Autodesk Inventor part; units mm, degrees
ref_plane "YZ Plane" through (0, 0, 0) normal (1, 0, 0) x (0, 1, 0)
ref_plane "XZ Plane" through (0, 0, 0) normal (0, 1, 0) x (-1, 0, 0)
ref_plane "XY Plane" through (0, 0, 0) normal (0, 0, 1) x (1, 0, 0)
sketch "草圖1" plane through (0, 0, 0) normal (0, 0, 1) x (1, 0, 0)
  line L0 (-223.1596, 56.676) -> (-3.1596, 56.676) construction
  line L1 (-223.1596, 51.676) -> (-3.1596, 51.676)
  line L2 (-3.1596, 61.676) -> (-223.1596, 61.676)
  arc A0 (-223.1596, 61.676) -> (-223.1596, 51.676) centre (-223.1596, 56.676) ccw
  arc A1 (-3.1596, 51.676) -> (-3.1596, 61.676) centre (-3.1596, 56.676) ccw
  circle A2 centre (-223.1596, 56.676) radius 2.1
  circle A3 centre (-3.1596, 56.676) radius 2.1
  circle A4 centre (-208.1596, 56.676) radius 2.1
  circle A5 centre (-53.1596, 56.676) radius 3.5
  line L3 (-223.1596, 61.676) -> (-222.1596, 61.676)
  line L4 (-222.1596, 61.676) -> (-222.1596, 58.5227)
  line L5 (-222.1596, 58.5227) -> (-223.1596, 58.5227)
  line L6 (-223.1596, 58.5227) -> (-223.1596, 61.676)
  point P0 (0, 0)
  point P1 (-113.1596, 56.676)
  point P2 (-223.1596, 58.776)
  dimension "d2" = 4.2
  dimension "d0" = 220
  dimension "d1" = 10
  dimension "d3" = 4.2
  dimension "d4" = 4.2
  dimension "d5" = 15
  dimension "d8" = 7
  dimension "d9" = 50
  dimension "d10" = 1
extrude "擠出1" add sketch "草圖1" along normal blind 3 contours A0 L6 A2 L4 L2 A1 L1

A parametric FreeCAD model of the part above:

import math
import FreeCAD as App
import Part
import Sketcher
from FreeCAD import Vector

doc = App.newDocument("Part")
params = doc.addObject("Spreadsheet::Sheet", "Params")
for row, (alias, value) in enumerate([
    ("sketch1_diameter", "7 mm"),
    ("sketch1_radius", "5 mm"),
    ("sketch1_diameter2", "4.2 mm"),
    ("sketch1_width", "220 mm"),
    ("pad1_length", "3 mm"),
], start=1):
    params.set(f"A{row}", alias)
    params.set(f"B{row}", "=" + value)
    params.setAlias(f"B{row}", alias)

body = doc.addObject("PartDesign::Body", "Body")

sketch1 = body.newObject("Sketcher::SketchObject", "Sketch")
sketch1.AttachmentSupport = (doc.getObject("XY_Plane"), [""])
sketch1.MapMode = "FlatFace"
sketch1.addGeometry(Part.ArcOfCircle(Part.Circle(Vector(-223.2, 56.7, 0), Vector(0, 0, 1), 5), math.radians(90), math.radians(270)), False)
sketch1.addGeometry(Part.LineSegment(Vector(-223.2, 51.7, 0), Vector(-3.2, 51.7, 0)), False)
sketch1.addGeometry(Part.ArcOfCircle(Part.Circle(Vector(-3.2, 56.7, 0), Vector(0, 0, 1), 5), math.radians(-90), math.radians(90)), False)
sketch1.addGeometry(Part.LineSegment(Vector(-3.2, 61.7, 0), Vector(-222.2, 61.7, 0)), False)
sketch1.addGeometry(Part.LineSegment(Vector(-222.2, 61.7, 0), Vector(-222.2, 58.5, 0)), False)
sketch1.addGeometry(Part.ArcOfCircle(Part.Circle(Vector(-223.2, 56.7, 0), Vector(0, 0, 1), 2.1), math.radians(90), math.radians(422)), False)
sketch1.addGeometry(Part.LineSegment(Vector(-223.2, 58.8, 0), Vector(-223.2, 61.7, 0)), False)
sketch1.addGeometry(Part.Circle(Vector(-208.2, 56.7, 0), Vector(0, 0, 1), 2.1), False)
sketch1.addGeometry(Part.Circle(Vector(-53.2, 56.7, 0), Vector(0, 0, 1), 3.5), False)
sketch1.addGeometry(Part.Circle(Vector(-3.2, 56.7, 0), Vector(0, 0, 1), 2.1), False)
sketch1.addConstraint(Sketcher.Constraint("Tangent", 0, 2, 1, 1))
sketch1.addConstraint(Sketcher.Constraint("Tangent", 1, 2, 2, 1))
sketch1.addConstraint(Sketcher.Constraint("Tangent", 2, 2, 3, 1))
sketch1.addConstraint(Sketcher.Constraint("Coincident", 3, 2, 4, 1))
sketch1.addConstraint(Sketcher.Constraint("Coincident", 4, 2, 5, 2))
sketch1.addConstraint(Sketcher.Constraint("Coincident", 5, 1, 6, 1))
sketch1.addConstraint(Sketcher.Constraint("Coincident", 6, 2, 0, 1))
sketch1.addConstraint(Sketcher.Constraint("Horizontal", 1))
sketch1.addConstraint(Sketcher.Constraint("Horizontal", 3))
sketch1.addConstraint(Sketcher.Constraint("Vertical", 4))
sketch1.addConstraint(Sketcher.Constraint("Vertical", 6))
sketch1.addConstraint(Sketcher.Constraint("Coincident", 5, 3, 0, 3))
sketch1.addConstraint(Sketcher.Constraint("Coincident", 9, 3, 2, 3))
sketch1.addConstraint(Sketcher.Constraint("Equal", 0, 2))
sketch1.addConstraint(Sketcher.Constraint("Equal", 5, 7))
sketch1.addConstraint(Sketcher.Constraint("Equal", 7, 9))
sketch1.addConstraint(Sketcher.Constraint("Horizontal", 5, 3, 7, 3))
sketch1.addConstraint(Sketcher.Constraint("Horizontal", 7, 3, 8, 3))
sketch1.addConstraint(Sketcher.Constraint("Vertical", 0, 2, 5, 1))
sketch1.addConstraint(Sketcher.Constraint("Diameter", 8, 7.0))
sketch1.addConstraint(Sketcher.Constraint("Radius", 0, 5.0))
sketch1.addConstraint(Sketcher.Constraint("Diameter", 7, 4.2))
sketch1.addConstraint(Sketcher.Constraint("DistanceX", 1, 1, 1, 2, 220.0))
sketch1.addConstraint(Sketcher.Constraint("DistanceX", 0, 3, 7, 3, 15.0))
sketch1.addConstraint(Sketcher.Constraint("DistanceX", 8, 3, 2, 3, 50.0))
sketch1.addConstraint(Sketcher.Constraint("DistanceX", 0, 3, 3, 2, 1.0))
sketch1.addConstraint(Sketcher.Constraint("DistanceY", -1, 1, 0, 3, 56.676))
sketch1.addConstraint(Sketcher.Constraint("DistanceX", 0, 3, -1, 1, 223.1596))
sketch1.setExpression("Constraints[19]", "Params.sketch1_diameter")
sketch1.setExpression("Constraints[20]", "Params.sketch1_radius")
sketch1.setExpression("Constraints[21]", "Params.sketch1_diameter2")
sketch1.setExpression("Constraints[22]", "Params.sketch1_width")
pad1 = body.newObject("PartDesign::Pad", "Pad")
pad1.Profile = sketch1
pad1.setExpression("Length", "Params.pad1_length")

doc.recompute()
